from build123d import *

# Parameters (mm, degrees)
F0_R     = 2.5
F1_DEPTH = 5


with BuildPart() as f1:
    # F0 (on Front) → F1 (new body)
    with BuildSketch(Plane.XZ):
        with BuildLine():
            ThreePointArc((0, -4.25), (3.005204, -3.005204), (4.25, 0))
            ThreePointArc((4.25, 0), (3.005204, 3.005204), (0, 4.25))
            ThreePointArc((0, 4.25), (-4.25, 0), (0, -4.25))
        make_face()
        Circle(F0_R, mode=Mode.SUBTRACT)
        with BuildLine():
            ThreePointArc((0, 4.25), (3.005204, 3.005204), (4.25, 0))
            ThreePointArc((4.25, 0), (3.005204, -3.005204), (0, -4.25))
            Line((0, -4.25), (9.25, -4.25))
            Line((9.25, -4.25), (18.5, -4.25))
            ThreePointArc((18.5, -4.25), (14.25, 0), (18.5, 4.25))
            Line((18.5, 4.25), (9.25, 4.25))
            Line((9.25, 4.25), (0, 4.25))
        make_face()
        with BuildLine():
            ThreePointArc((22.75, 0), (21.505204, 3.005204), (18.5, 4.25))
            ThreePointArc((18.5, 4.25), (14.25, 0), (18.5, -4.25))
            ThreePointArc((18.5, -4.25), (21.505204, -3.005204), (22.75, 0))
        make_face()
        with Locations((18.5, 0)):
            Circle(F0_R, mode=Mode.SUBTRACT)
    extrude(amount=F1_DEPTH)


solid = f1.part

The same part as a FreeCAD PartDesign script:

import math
import FreeCAD as App
import Part
import Sketcher
from FreeCAD import Vector

doc = App.newDocument("Part")
body = doc.addObject("PartDesign::Body", "Body")

sketch1 = doc.addObject("Sketcher::SketchObject", "Sketch")
body.addObject(sketch1)
sketch1.AttachmentSupport = (doc.XZ_Plane, [""])
sketch1.MapMode = "FlatFace"
sketch1.addGeometry(Part.ArcOfCircle(Part.Circle(Vector(0, 0, 0), Vector(0, 0, 1), 4.25), math.radians(90), math.radians(270)), False)
sketch1.addGeometry(Part.LineSegment(Vector(0, -4.25, 0), Vector(18.5, -4.25, 0)), False)
sketch1.addGeometry(Part.ArcOfCircle(Part.Circle(Vector(18.500001, -0.000001, 0), Vector(0, 0, 1), 4.249999), math.radians(-90.000008), math.radians(0.000008)), False)
sketch1.addGeometry(Part.ArcOfCircle(Part.Circle(Vector(18.500001, 0.000001, 0), Vector(0, 0, 1), 4.249999), math.radians(-0.000008), math.radians(90.000008)), False)
sketch1.addGeometry(Part.LineSegment(Vector(18.5, 4.25, 0), Vector(0, 4.25, 0)), False)
sketch1.addGeometry(Part.Circle(Vector(0, 0, 0), Vector(0, 0, 1), 2.5), False)
sketch1.addGeometry(Part.Circle(Vector(18.5, 0, 0), Vector(0, 0, 1), 2.5), False)
sketch1.addConstraint(Sketcher.Constraint("Tangent", 0, 2, 1, 1))
sketch1.addConstraint(Sketcher.Constraint("Tangent", 1, 2, 2, 1))
sketch1.addConstraint(Sketcher.Constraint("Tangent", 2, 2, 3, 1))
sketch1.addConstraint(Sketcher.Constraint("Tangent", 3, 2, 4, 1))
sketch1.addConstraint(Sketcher.Constraint("Tangent", 4, 2, 0, 1))
sketch1.addConstraint(Sketcher.Constraint("Horizontal", 1))
sketch1.addConstraint(Sketcher.Constraint("Horizontal", 4))
sketch1.addConstraint(Sketcher.Constraint("Coincident", 0, 3, -1, 1))
sketch1.addConstraint(Sketcher.Constraint("Coincident", 5, 3, -1, 1))
sketch1.addConstraint(Sketcher.Constraint("Coincident", 6, 3, 2, 3))
sketch1.addConstraint(Sketcher.Constraint("Equal", 0, 2))
sketch1.addConstraint(Sketcher.Constraint("Equal", 5, 6))
sketch1.addConstraint(Sketcher.Constraint("PointOnObject", 2, 2, -1))
sketch1.addConstraint(Sketcher.Constraint("Diameter", 5, 5.0))
sketch1.addConstraint(Sketcher.Constraint("Radius", 0, 4.25))
sketch1.addConstraint(Sketcher.Constraint("DistanceX", 1, 1, 1, 2, 18.5))
pad1 = doc.addObject("PartDesign::Pad", "Pad")
body.addObject(pad1)
pad1.Profile = sketch1
pad1.Length = 5

doc.recompute()
